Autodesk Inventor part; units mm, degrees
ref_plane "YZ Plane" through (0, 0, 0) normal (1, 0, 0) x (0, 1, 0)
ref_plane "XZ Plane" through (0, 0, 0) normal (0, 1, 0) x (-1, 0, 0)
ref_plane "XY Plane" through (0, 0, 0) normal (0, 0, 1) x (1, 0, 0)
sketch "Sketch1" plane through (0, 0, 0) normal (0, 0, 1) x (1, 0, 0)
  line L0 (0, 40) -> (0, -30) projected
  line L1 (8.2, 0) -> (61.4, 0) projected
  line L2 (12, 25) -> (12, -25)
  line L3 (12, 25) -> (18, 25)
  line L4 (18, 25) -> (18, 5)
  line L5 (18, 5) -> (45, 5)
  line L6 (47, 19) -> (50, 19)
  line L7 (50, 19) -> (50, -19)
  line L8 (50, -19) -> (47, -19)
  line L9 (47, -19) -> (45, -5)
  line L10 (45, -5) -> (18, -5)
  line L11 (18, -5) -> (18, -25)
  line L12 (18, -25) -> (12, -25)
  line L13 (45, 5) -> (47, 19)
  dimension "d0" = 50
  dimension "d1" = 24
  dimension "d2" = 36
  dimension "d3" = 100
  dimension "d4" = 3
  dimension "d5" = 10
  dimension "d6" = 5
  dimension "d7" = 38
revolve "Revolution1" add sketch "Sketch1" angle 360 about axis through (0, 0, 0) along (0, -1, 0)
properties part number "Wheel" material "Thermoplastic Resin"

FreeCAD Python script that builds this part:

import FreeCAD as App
import Part
import Sketcher

V = App.Vector


def add_polygon(sketch, points):
    """Adds a closed chain of lines whose ends are joined by coincident constraints."""
    first, n = sketch.GeometryCount, len(points)
    for a, b in zip(points, points[1:] + points[:1]):
        sketch.addGeometry(Part.LineSegment(App.Vector(*a, 0), App.Vector(*b, 0)), False)
    for i in range(n):
        sketch.addConstraint(Sketcher.Constraint("Coincident", first + i, 2, first + (i + 1) % n, 1))

doc = App.newDocument("Part")
body = doc.addObject("PartDesign::Body", "Body")

# Sketch on XY plane
sketch1 = body.newObject("Sketcher::SketchObject", "Sketch")
sketch1.AttachmentSupport = (doc.getObject("XY_Plane"), [""])
sketch1.MapMode = "FlatFace"
add_polygon(sketch1, [(12, 25), (12, -25), (18, -25), (18, -5), (45, -5), (47, -19), (50, -19), (50, 19), (47, 19), (45, 5), (18, 5), (18, 25)])  # lines 0-11
sketch1.addConstraint(Sketcher.Constraint("Vertical", 0))
sketch1.addConstraint(Sketcher.Constraint("Horizontal", 1))
sketch1.addConstraint(Sketcher.Constraint("Vertical", 2))
sketch1.addConstraint(Sketcher.Constraint("Horizontal", 3))
sketch1.addConstraint(Sketcher.Constraint("Horizontal", 5))
sketch1.addConstraint(Sketcher.Constraint("Vertical", 6))
sketch1.addConstraint(Sketcher.Constraint("Horizontal", 7))
sketch1.addConstraint(Sketcher.Constraint("Horizontal", 9))
sketch1.addConstraint(Sketcher.Constraint("Vertical", 10))
sketch1.addConstraint(Sketcher.Constraint("Horizontal", 11))
sketch1.addConstraint(Sketcher.Constraint("Symmetric", 4, 2, 7, 2, -1))
sketch1.addConstraint(Sketcher.Constraint("Symmetric", 3, 2, 8, 2, -1))
sketch1.addConstraint(Sketcher.Constraint("Symmetric", 1, 2, 10, 2, -1))
sketch1.addConstraint(Sketcher.Constraint("DistanceX", 5, 1, 5, 2, 3.0))
sketch1.addConstraint(Sketcher.Constraint("DistanceY", 0, 2, 0, 1, 50.0))
sketch1.addConstraint(Sketcher.Constraint("DistanceY", 6, 1, 6, 2, 38.0))
sketch1.addConstraint(Sketcher.Constraint("DistanceY", 2, 2, -1, 1, 5.0))
sketch1.addConstraint(Sketcher.Constraint("DistanceX", -1, 1, 5, 2, 50.0))
sketch1.addConstraint(Sketcher.Constraint("DistanceX", 3, 2, 5, 2, 5.0))
sketch1.addConstraint(Sketcher.Constraint("DistanceX", 0, 2, 5, 2, 38.0))
sketch1.addConstraint(Sketcher.Constraint("DistanceX", 1, 1, 1, 2, 6.0))
revolution = body.newObject("PartDesign::Revolution", "Revolution")
revolution.Profile = sketch1
revolution.ReferenceAxis = (sketch1, ["V_Axis"])
revolution.Angle = 360

doc.recompute()
